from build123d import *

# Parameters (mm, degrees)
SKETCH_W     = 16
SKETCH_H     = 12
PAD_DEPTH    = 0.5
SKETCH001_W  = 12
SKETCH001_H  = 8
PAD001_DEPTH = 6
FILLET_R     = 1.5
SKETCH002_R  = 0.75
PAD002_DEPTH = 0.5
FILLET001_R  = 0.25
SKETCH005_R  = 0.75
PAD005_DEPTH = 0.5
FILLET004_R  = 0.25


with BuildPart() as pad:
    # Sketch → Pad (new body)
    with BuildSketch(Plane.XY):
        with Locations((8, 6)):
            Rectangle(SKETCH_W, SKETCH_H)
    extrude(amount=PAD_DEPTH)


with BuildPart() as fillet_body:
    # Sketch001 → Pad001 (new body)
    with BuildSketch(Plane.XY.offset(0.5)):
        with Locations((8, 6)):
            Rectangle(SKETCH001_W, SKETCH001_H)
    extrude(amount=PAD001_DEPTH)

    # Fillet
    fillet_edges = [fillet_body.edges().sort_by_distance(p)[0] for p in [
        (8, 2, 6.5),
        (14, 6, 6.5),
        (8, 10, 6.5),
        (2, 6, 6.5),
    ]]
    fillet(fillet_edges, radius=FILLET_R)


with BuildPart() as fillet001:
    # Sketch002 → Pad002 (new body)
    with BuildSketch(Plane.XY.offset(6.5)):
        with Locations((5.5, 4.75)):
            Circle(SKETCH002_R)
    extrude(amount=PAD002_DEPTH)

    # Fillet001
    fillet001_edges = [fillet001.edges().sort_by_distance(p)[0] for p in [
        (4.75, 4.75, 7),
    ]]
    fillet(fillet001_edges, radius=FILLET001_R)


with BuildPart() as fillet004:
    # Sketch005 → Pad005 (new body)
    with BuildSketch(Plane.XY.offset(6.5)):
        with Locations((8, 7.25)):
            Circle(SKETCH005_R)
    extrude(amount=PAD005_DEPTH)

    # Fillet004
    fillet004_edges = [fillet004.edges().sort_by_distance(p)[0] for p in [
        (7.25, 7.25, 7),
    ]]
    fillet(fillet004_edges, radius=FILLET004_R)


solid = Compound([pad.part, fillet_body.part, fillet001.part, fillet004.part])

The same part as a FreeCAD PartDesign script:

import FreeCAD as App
import Part
import Sketcher

V = App.Vector


def edges_at(feature, points):
    """Names of the edges that pass closest to the given points."""
    edges = feature.Shape.Edges
    near = lambda p: min(range(len(edges)), key=lambda i: edges[i].distToShape(Part.Vertex(*p))[0])
    return sorted({f"Edge{near(p) + 1}" for p in points})

doc = App.newDocument("Part")
body = doc.addObject("PartDesign::Body", "Body")

# Sketch on XY plane
sketch1 = doc.addObject("Sketcher::SketchObject", "Sketch")
body.addObject(sketch1)
sketch1.AttachmentSupport = (doc.XY_Plane, [""])
sketch1.MapMode = "FlatFace"
sketch1.addGeometry([
    Part.LineSegment(V(0, 12, 0), V(0, 0, 0)),
    Part.LineSegment(V(0, 0, 0), V(16, 0, 0)),
    Part.LineSegment(V(16, 0, 0), V(16, 12, 0)),
    Part.LineSegment(V(16, 12, 0), V(0, 12, 0)),
], False)
sketch1.addConstraint([
    Sketcher.Constraint("Coincident", 0, 2, 1, 1),
    Sketcher.Constraint("Coincident", 1, 2, 2, 1),
    Sketcher.Constraint("Coincident", 2, 2, 3, 1),
    Sketcher.Constraint("Coincident", 3, 2, 0, 1),
    Sketcher.Constraint("Vertical", 0),
    Sketcher.Constraint("Horizontal", 1),
    Sketcher.Constraint("Vertical", 2),
    Sketcher.Constraint("Horizontal", 3),
    Sketcher.Constraint("Coincident", 0, 2, -1, 1),
    Sketcher.Constraint("DistanceX", 1, 1, 1, 2, 16.0),
    Sketcher.Constraint("DistanceY", 0, 2, 0, 1, 12.0),
])
pad1 = doc.addObject("PartDesign::Pad", "Pad")
body.addObject(pad1)
pad1.Profile = sketch1
pad1.Length = 0.5
body2 = doc.addObject("PartDesign::Body", "Body001")

# Sketch on XY plane
sketch2 = doc.addObject("Sketcher::SketchObject", "Sketch001")
body2.addObject(sketch2)
sketch2.AttachmentSupport = (doc.getObject("XY_Plane001"), [""])
sketch2.MapMode = "FlatFace"
sketch2.AttachmentOffset = App.Placement(V(0, 0, 0.5), App.Rotation())
sketch2.addGeometry([
    Part.LineSegment(V(2, 10, 0), V(2, 2, 0)),
    Part.LineSegment(V(2, 2, 0), V(14, 2, 0)),
    Part.LineSegment(V(14, 2, 0), V(14, 10, 0)),
    Part.LineSegment(V(14, 10, 0), V(2, 10, 0)),
], False)
sketch2.addConstraint([
    Sketcher.Constraint("Coincident", 0, 2, 1, 1),
    Sketcher.Constraint("Coincident", 1, 2, 2, 1),
    Sketcher.Constraint("Coincident", 2, 2, 3, 1),
    Sketcher.Constraint("Coincident", 3, 2, 0, 1),
    Sketcher.Constraint("Vertical", 0),
    Sketcher.Constraint("Horizontal", 1),
    Sketcher.Constraint("Vertical", 2),
    Sketcher.Constraint("Horizontal", 3),
    Sketcher.Constraint("DistanceX", 1, 1, 1, 2, 12.0),
    Sketcher.Constraint("DistanceY", 0, 2, 0, 1, 8.0),
    Sketcher.Constraint("DistanceX", -1, 1, 0, 2, 2.0),
    Sketcher.Constraint("DistanceY", -1, 1, 0, 2, 2.0),
])
pad2 = doc.addObject("PartDesign::Pad", "Pad001")
body2.addObject(pad2)
pad2.Profile = sketch2
pad2.Length = 6
doc.recompute()

fillet = doc.addObject("PartDesign::Fillet", "Fillet")
body2.addObject(fillet)
fillet.Base = (pad2, edges_at(pad2, [
    (8, 2, 6.5),
    (14, 6, 6.5),
    (8, 10, 6.5),
    (2, 6, 6.5),
]))
fillet.Radius = 1.5
body3 = doc.addObject("PartDesign::Body", "Body002")

# Sketch on XY plane
sketch3 = doc.addObject("Sketcher::SketchObject", "Sketch002")
body3.addObject(sketch3)
sketch3.AttachmentSupport = (doc.getObject("XY_Plane002"), [""])
sketch3.MapMode = "FlatFace"
sketch3.AttachmentOffset = App.Placement(V(0, 0, 6.5), App.Rotation())
sketch3.addGeometry(Part.Circle(V(5.5, 4.8, 0), V(0, 0, 1), 0.8), False)
sketch3.addConstraint([
    Sketcher.Constraint("Diameter", 0, 1.5),
    Sketcher.Constraint("DistanceX", -1, 1, 0, 3, 5.5),
    Sketcher.Constraint("DistanceY", -1, 1, 0, 3, 4.75),
])
pad3 = doc.addObject("PartDesign::Pad", "Pad002")
body3.addObject(pad3)
pad3.Profile = sketch3
pad3.Length = 0.5
doc.recompute()

fillet2 = doc.addObject("PartDesign::Fillet", "Fillet001")
body3.addObject(fillet2)
fillet2.Base = (pad3, edges_at(pad3, [(4.75, 4.75, 7)]))
fillet2.Radius = 0.25
body4 = doc.addObject("PartDesign::Body", "Body003")

# Sketch on XY plane
sketch4 = doc.addObject("Sketcher::SketchObject", "Sketch003")
body4.addObject(sketch4)
sketch4.AttachmentSupport = (doc.getObject("XY_Plane003"), [""])
sketch4.MapMode = "FlatFace"
sketch4.AttachmentOffset = App.Placement(V(0, 0, 6.5), App.Rotation())
sketch4.addGeometry(Part.Circle(V(8, 7.2, 0), V(0, 0, 1), 0.8), False)
sketch4.addConstraint([
    Sketcher.Constraint("Diameter", 0, 1.5),
    Sketcher.Constraint("DistanceX", -1, 1, 0, 3, 8.0),
    Sketcher.Constraint("DistanceY", -1, 1, 0, 3, 7.25),
])
pad4 = doc.addObject("PartDesign::Pad", "Pad003")
body4.addObject(pad4)
pad4.Profile = sketch4
pad4.Length = 0.5
doc.recompute()

fillet3 = doc.addObject("PartDesign::Fillet", "Fillet002")
body4.addObject(fillet3)
fillet3.Base = (pad4, edges_at(pad4, [(7.25, 7.25, 7)]))
fillet3.Radius = 0.25

doc.recompute()
